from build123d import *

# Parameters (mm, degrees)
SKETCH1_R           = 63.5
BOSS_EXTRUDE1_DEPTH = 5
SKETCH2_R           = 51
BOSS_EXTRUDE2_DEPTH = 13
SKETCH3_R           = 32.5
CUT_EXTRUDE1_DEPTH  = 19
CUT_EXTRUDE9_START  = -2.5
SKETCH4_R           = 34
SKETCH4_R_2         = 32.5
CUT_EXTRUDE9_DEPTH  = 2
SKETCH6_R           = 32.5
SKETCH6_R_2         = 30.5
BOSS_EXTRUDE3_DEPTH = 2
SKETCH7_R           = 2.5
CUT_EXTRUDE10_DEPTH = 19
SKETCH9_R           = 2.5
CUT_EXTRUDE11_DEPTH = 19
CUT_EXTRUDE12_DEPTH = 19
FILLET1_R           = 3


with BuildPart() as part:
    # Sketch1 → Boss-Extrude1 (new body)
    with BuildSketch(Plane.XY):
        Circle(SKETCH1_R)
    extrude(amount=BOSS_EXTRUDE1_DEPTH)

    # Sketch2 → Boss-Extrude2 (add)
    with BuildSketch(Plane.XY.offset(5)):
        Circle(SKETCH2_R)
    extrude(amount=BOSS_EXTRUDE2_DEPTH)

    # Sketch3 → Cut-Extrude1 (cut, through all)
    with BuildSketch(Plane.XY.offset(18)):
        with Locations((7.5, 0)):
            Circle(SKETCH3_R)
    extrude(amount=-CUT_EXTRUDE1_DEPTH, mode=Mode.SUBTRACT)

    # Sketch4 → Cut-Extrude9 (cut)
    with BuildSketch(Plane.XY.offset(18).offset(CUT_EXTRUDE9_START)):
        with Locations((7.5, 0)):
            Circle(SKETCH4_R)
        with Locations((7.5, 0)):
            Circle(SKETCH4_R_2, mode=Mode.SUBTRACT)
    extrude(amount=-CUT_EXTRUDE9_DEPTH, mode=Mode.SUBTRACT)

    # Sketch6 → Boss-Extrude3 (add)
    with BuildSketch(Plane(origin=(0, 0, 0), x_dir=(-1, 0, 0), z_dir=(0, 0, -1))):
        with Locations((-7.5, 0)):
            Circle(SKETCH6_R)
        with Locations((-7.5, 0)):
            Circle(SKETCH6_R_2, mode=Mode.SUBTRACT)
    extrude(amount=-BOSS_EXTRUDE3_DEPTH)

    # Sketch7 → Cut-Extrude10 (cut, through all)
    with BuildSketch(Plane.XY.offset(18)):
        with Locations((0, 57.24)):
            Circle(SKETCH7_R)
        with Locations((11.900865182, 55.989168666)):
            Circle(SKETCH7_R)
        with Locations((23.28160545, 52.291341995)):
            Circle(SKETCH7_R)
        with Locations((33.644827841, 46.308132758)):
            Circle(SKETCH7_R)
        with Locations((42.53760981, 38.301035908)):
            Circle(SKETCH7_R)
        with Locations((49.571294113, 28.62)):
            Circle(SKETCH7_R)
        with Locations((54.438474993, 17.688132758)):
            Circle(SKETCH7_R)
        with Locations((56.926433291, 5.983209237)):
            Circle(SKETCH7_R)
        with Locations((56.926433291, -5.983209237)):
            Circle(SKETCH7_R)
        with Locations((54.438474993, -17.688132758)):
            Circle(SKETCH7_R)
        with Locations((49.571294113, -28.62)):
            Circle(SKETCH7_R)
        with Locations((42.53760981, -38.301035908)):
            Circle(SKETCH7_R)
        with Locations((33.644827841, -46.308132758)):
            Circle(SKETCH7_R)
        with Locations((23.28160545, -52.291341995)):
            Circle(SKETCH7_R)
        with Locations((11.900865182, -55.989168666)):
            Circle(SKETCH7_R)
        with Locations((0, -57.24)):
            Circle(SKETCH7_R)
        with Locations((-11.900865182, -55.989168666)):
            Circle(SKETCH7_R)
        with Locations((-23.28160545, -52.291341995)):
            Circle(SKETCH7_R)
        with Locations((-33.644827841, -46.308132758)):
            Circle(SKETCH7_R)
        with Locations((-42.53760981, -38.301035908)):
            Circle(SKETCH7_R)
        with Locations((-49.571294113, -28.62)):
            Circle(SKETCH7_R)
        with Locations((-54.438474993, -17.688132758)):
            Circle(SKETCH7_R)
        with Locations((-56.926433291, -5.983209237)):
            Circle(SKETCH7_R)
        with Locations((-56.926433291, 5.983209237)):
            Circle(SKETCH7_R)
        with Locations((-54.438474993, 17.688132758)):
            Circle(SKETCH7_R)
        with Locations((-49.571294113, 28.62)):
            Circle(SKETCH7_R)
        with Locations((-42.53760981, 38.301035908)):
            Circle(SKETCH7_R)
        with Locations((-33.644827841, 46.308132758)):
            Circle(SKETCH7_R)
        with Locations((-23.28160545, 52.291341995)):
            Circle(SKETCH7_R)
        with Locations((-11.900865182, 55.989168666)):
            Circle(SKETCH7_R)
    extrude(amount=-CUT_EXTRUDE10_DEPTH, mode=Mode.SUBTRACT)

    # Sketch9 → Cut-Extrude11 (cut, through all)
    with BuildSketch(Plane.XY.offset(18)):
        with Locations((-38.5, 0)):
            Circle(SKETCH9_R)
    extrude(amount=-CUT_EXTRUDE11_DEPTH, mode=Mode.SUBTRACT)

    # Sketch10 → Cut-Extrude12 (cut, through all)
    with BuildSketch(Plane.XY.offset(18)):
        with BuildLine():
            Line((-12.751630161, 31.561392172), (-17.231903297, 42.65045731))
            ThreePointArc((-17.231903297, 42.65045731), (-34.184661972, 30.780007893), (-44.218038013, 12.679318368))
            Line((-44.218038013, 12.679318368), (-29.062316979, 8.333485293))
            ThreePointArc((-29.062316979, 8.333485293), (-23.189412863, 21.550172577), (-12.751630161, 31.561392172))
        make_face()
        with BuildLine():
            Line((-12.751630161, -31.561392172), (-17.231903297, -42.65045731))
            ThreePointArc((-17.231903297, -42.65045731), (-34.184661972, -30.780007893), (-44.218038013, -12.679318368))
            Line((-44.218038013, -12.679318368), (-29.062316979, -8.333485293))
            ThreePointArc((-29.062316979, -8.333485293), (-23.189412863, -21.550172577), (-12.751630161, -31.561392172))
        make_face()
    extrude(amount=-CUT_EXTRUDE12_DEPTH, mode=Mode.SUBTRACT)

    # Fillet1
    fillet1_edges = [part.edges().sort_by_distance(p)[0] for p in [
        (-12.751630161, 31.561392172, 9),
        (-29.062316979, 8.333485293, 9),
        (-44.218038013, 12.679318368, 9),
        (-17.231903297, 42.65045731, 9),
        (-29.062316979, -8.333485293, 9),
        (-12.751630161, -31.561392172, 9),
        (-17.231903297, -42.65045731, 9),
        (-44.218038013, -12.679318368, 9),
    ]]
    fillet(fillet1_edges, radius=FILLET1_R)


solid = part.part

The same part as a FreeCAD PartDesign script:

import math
import FreeCAD as App
import Part
import Sketcher
from FreeCAD import Vector
Q = App.Units.Quantity


def edges_at(feature, points):
    """Names of the edges that pass closest to the given points."""
    edges = feature.Shape.Edges
    near = lambda p: min(range(len(edges)), key=lambda i: edges[i].distToShape(Part.Vertex(*p))[0])
    return sorted({f"Edge{near(p) + 1}" for p in points})

doc = App.newDocument("Part")
body = doc.addObject("PartDesign::Body", "Body")

sketch1 = body.newObject("Sketcher::SketchObject", "Sketch")
sketch1.AttachmentSupport = (doc.getObject("XY_Plane"), [""])
sketch1.MapMode = "FlatFace"
sketch1.addGeometry(Part.Circle(Vector(0, 0, 0), Vector(0, 0, 1), 64), False)
sketch1.addConstraint([
    Sketcher.Constraint("Coincident", 0, 3, -1, 1),
    Sketcher.Constraint("Diameter", 0, 127.0),
])
pad1 = body.newObject("PartDesign::Pad", "Pad")
pad1.Profile = sketch1
pad1.Length = 5

sketch2 = body.newObject("Sketcher::SketchObject", "Sketch001")
sketch2.AttachmentSupport = (doc.getObject("XY_Plane"), [""])
sketch2.MapMode = "FlatFace"
sketch2.AttachmentOffset = App.Placement(Vector(0, 0, 5), App.Rotation())
sketch2.addGeometry(Part.Circle(Vector(0, 0, 0), Vector(0, 0, 1), 51), False)
sketch2.addConstraint([
    Sketcher.Constraint("Coincident", 0, 3, -1, 1),
    Sketcher.Constraint("Diameter", 0, 102.0),
])
pad2 = body.newObject("PartDesign::Pad", "Pad001")
pad2.Profile = sketch2
pad2.Length = 13

sketch3 = body.newObject("Sketcher::SketchObject", "Sketch002")
sketch3.AttachmentSupport = (doc.getObject("XY_Plane"), [""])
sketch3.MapMode = "FlatFace"
sketch3.AttachmentOffset = App.Placement(Vector(0, 0, 18), App.Rotation())
sketch3.addGeometry(Part.Circle(Vector(8, 0, 0), Vector(0, 0, 1), 32), False)
sketch3.addConstraint([
    Sketcher.Constraint("PointOnObject", 0, 3, -1),
    Sketcher.Constraint("Diameter", 0, 65.0),
    Sketcher.Constraint("DistanceX", -1, 1, 0, 3, 7.5),
])
pocket1 = body.newObject("PartDesign::Pocket", "Pocket")
pocket1.Profile = sketch3
pocket1.Type = "ThroughAll"

sketch4 = body.newObject("Sketcher::SketchObject", "Sketch003")
sketch4.AttachmentSupport = (doc.getObject("XY_Plane"), [""])
sketch4.MapMode = "FlatFace"
sketch4.AttachmentOffset = App.Placement(Vector(0, 0, 15.5), App.Rotation())
sketch4.addGeometry([
    Part.Circle(Vector(8, 0, 0), Vector(0, 0, 1), 34),
    Part.Circle(Vector(8, 0, 0), Vector(0, 0, 1), 32),
], False)
sketch4.addConstraint([
    Sketcher.Constraint("Coincident", 1, 3, 0, 3),
    Sketcher.Constraint("PointOnObject", 0, 3, -1),
    Sketcher.Constraint("Diameter", 0, 68.0),
    Sketcher.Constraint("Diameter", 1, 65.0),
    Sketcher.Constraint("DistanceX", -1, 1, 0, 3, 7.5),
])
pocket2 = body.newObject("PartDesign::Pocket", "Pocket001")
pocket2.Profile = sketch4
pocket2.Length = 2

sketch5 = body.newObject("Sketcher::SketchObject", "Sketch004")
sketch5.AttachmentSupport = (doc.getObject("XY_Plane"), [""])
sketch5.MapMode = "FlatFace"
sketch5.addGeometry([
    Part.Circle(Vector(8, 0, 0), Vector(0, 0, 1), 32),
    Part.Circle(Vector(8, 0, 0), Vector(0, 0, 1), 30),
], False)
sketch5.addConstraint([
    Sketcher.Constraint("Coincident", 1, 3, 0, 3),
    Sketcher.Constraint("PointOnObject", 0, 3, -1),
    Sketcher.Constraint("Diameter", 0, 65.0),
    Sketcher.Constraint("Diameter", 1, 61.0),
    Sketcher.Constraint("DistanceX", -1, 1, 0, 3, 7.5),
])
pad3 = body.newObject("PartDesign::Pad", "Pad002")
pad3.Profile = sketch5
pad3.Length = 2

sketch6 = body.newObject("Sketcher::SketchObject", "Sketch005")
sketch6.AttachmentSupport = (doc.getObject("XY_Plane"), [""])
sketch6.MapMode = "FlatFace"
sketch6.AttachmentOffset = App.Placement(Vector(0, 0, 18), App.Rotation())
sketch6.addGeometry([
    Part.Circle(Vector(0, 57.2, 0), Vector(0, 0, 1), 2.5),
    Part.Circle(Vector(11.9, 56, 0), Vector(0, 0, 1), 2.5),
    Part.Circle(Vector(23.3, 52.3, 0), Vector(0, 0, 1), 2.5),
    Part.Circle(Vector(33.6, 46.3, 0), Vector(0, 0, 1), 2.5),
    Part.Circle(Vector(42.5, 38.3, 0), Vector(0, 0, 1), 2.5),
    Part.Circle(Vector(49.6, 28.6, 0), Vector(0, 0, 1), 2.5),
    Part.Circle(Vector(54.4, 17.7, 0), Vector(0, 0, 1), 2.5),
    Part.Circle(Vector(56.9, 6, 0), Vector(0, 0, 1), 2.5),
    Part.Circle(Vector(56.9, -6, 0), Vector(0, 0, 1), 2.5),
    Part.Circle(Vector(54.4, -17.7, 0), Vector(0, 0, 1), 2.5),
    Part.Circle(Vector(49.6, -28.6, 0), Vector(0, 0, 1), 2.5),
    Part.Circle(Vector(42.5, -38.3, 0), Vector(0, 0, 1), 2.5),
    Part.Circle(Vector(33.6, -46.3, 0), Vector(0, 0, 1), 2.5),
    Part.Circle(Vector(23.3, -52.3, 0), Vector(0, 0, 1), 2.5),
    Part.Circle(Vector(11.9, -56, 0), Vector(0, 0, 1), 2.5),
    Part.Circle(Vector(0, -57.2, 0), Vector(0, 0, 1), 2.5),
    Part.Circle(Vector(-11.9, -56, 0), Vector(0, 0, 1), 2.5),
    Part.Circle(Vector(-23.3, -52.3, 0), Vector(0, 0, 1), 2.5),
    Part.Circle(Vector(-33.6, -46.3, 0), Vector(0, 0, 1), 2.5),
    Part.Circle(Vector(-42.5, -38.3, 0), Vector(0, 0, 1), 2.5),
    Part.Circle(Vector(-49.6, -28.6, 0), Vector(0, 0, 1), 2.5),
    Part.Circle(Vector(-54.4, -17.7, 0), Vector(0, 0, 1), 2.5),
    Part.Circle(Vector(-56.9, -6, 0), Vector(0, 0, 1), 2.5),
    Part.Circle(Vector(-56.9, 6, 0), Vector(0, 0, 1), 2.5),
    Part.Circle(Vector(-54.4, 17.7, 0), Vector(0, 0, 1), 2.5),
    Part.Circle(Vector(-49.6, 28.6, 0), Vector(0, 0, 1), 2.5),
    Part.Circle(Vector(-42.5, 38.3, 0), Vector(0, 0, 1), 2.5),
    Part.Circle(Vector(-33.6, 46.3, 0), Vector(0, 0, 1), 2.5),
    Part.Circle(Vector(-23.3, 52.3, 0), Vector(0, 0, 1), 2.5),
    Part.Circle(Vector(-11.9, 56, 0), Vector(0, 0, 1), 2.5),
], False)
sketch6.addConstraint([
    Sketcher.Constraint("Equal", 0, 1),
    Sketcher.Constraint("Equal", 1, 2),
    Sketcher.Constraint("Equal", 2, 3),
    Sketcher.Constraint("Equal", 3, 4),
    Sketcher.Constraint("Equal", 4, 5),
    Sketcher.Constraint("Equal", 5, 6),
    Sketcher.Constraint("Equal", 6, 7),
    Sketcher.Constraint("Equal", 7, 8),
    Sketcher.Constraint("Equal", 8, 9),
    Sketcher.Constraint("Equal", 9, 10),
    Sketcher.Constraint("Equal", 10, 11),
    Sketcher.Constraint("Equal", 11, 12),
    Sketcher.Constraint("Equal", 12, 13),
    Sketcher.Constraint("Equal", 13, 14),
    Sketcher.Constraint("Equal", 14, 15),
    Sketcher.Constraint("Equal", 15, 16),
    Sketcher.Constraint("Equal", 16, 17),
    Sketcher.Constraint("Equal", 17, 18),
    Sketcher.Constraint("Equal", 18, 19),
    Sketcher.Constraint("Equal", 19, 20),
    Sketcher.Constraint("Equal", 20, 21),
    Sketcher.Constraint("Equal", 21, 22),
    Sketcher.Constraint("Equal", 22, 23),
    Sketcher.Constraint("Equal", 23, 24),
    Sketcher.Constraint("Equal", 24, 25),
    Sketcher.Constraint("Equal", 25, 26),
    Sketcher.Constraint("Equal", 26, 27),
    Sketcher.Constraint("Equal", 27, 28),
    Sketcher.Constraint("Equal", 28, 29),
    Sketcher.Constraint("Symmetric", 0, 3, 15, 3, -1, 1),
    Sketcher.Constraint("Symmetric", 1, 3, 16, 3, -1, 1),
    Sketcher.Constraint("Symmetric", 2, 3, 17, 3, -1, 1),
    Sketcher.Constraint("Symmetric", 3, 3, 18, 3, -1, 1),
    Sketcher.Constraint("Symmetric", 4, 3, 19, 3, -1, 1),
    Sketcher.Constraint("Symmetric", 5, 3, 20, 3, -1, 1),
    Sketcher.Constraint("Symmetric", 6, 3, 21, 3, -1, 1),
    Sketcher.Constraint("Symmetric", 7, 3, 22, 3, -1, 1),
    Sketcher.Constraint("Symmetric", 8, 3, 23, 3, -1, 1),
    Sketcher.Constraint("Symmetric", 9, 3, 24, 3, -1, 1),
    Sketcher.Constraint("Symmetric", 10, 3, 25, 3, -1, 1),
    Sketcher.Constraint("Symmetric", 11, 3, 26, 3, -1, 1),
    Sketcher.Constraint("Symmetric", 12, 3, 27, 3, -1, 1),
    Sketcher.Constraint("Symmetric", 13, 3, 28, 3, -1, 1),
    Sketcher.Constraint("Symmetric", 14, 3, 29, 3, -1, 1),
    Sketcher.Constraint("Symmetric", 14, 3, 16, 3, -2),
    Sketcher.Constraint("Symmetric", 13, 3, 17, 3, -2),
    Sketcher.Constraint("Symmetric", 12, 3, 18, 3, -2),
    Sketcher.Constraint("Symmetric", 11, 3, 19, 3, -2),
    Sketcher.Constraint("Symmetric", 10, 3, 20, 3, -2),
    Sketcher.Constraint("Symmetric", 9, 3, 21, 3, -2),
    Sketcher.Constraint("Symmetric", 8, 3, 22, 3, -2),
    Sketcher.Constraint("PointOnObject", 0, 3, -2),
    Sketcher.Constraint("Diameter", 0, 5.0),
    Sketcher.Constraint("DistanceY", -1, 1, 0, 3, 57.24),
    Sketcher.Constraint("DistanceY", -1, 1, 5, 3, 28.62),
    Sketcher.Constraint("DistanceY", 6, 3, 3, 3, 28.62),
    Sketcher.Constraint("DistanceY", -1, 1, 1, 3, 55.989169),
    Sketcher.Constraint("DistanceY", -1, 1, 2, 3, 52.291342),
    Sketcher.Constraint("DistanceX", -1, 1, 4, 3, 42.53761),
    Sketcher.Constraint("DistanceY", -1, 1, 7, 3, 5.983209),
    Sketcher.Constraint("DistanceX", 1, 3, 2, 3, 11.38074),
    Sketcher.Constraint("DistanceY", 3, 3, 2, 3, 5.983209),
    Sketcher.Constraint("DistanceX", 3, 3, 4, 3, 8.892782),
    Sketcher.Constraint("DistanceX", 2, 3, 5, 3, 26.289689),
    Sketcher.Constraint("DistanceX", 5, 3, 6, 3, 4.867181),
    Sketcher.Constraint("DistanceX", 6, 3, 7, 3, 2.487958),
    Sketcher.Constraint("DistanceY", 9, 3, 4, 3, 55.989169),
    Sketcher.Constraint("DistanceX", 16, 3, 14, 3, 23.80173),
])
pocket3 = body.newObject("PartDesign::Pocket", "Pocket002")
pocket3.Profile = sketch6
pocket3.Type = "ThroughAll"

sketch7 = body.newObject("Sketcher::SketchObject", "Sketch006")
sketch7.AttachmentSupport = (doc.getObject("XY_Plane"), [""])
sketch7.MapMode = "FlatFace"
sketch7.AttachmentOffset = App.Placement(Vector(0, 0, 18), App.Rotation())
sketch7.addGeometry(Part.Circle(Vector(-38.5, 0, 0), Vector(0, 0, 1), 2.5), False)
sketch7.addConstraint([
    Sketcher.Constraint("PointOnObject", 0, 3, -1),
    Sketcher.Constraint("Diameter", 0, 5.0),
    Sketcher.Constraint("DistanceX", 0, 3, -1, 1, 38.5),
])
pocket4 = body.newObject("PartDesign::Pocket", "Pocket003")
pocket4.Profile = sketch7
pocket4.Type = "ThroughAll"

sketch8 = body.newObject("Sketcher::SketchObject", "Sketch007")
sketch8.AttachmentSupport = (doc.getObject("XY_Plane"), [""])
sketch8.MapMode = "FlatFace"
sketch8.AttachmentOffset = App.Placement(Vector(0, 0, 18), App.Rotation())
sketch8.addGeometry([
    Part.LineSegment(Vector(-13, 32, 0), Vector(-17, 43, 0)),
    Part.ArcOfCircle(Part.Circle(Vector(0, 0, 0), Vector(0, 0, 1), 46), math.radians(112), math.radians(164)),
    Part.LineSegment(Vector(-44, 13, 0), Vector(-29, 8, 0)),
    Part.ArcOfCircle(Part.Circle(Vector(8, 0, 0), Vector(0, 0, 1), 38), math.radians(123), math.radians(167)),
    Part.LineSegment(Vector(-17, -43, 0), Vector(-13, -32, 0)),
    Part.ArcOfCircle(Part.Circle(Vector(8, 0, 0), Vector(0, 0, 1), 38), math.radians(-167), math.radians(-123)),
    Part.LineSegment(Vector(-29, -8, 0), Vector(-44, -13, 0)),
    Part.ArcOfCircle(Part.Circle(Vector(0, 0, 0), Vector(0, 0, 1), 46), math.radians(-164), math.radians(-112)),
], False)
sketch8.addConstraint([
    Sketcher.Constraint("Coincident", 0, 2, 1, 1),
    Sketcher.Constraint("Coincident", 1, 2, 2, 1),
    Sketcher.Constraint("Coincident", 2, 2, 3, 2),
    Sketcher.Constraint("Coincident", 3, 1, 0, 1),
    Sketcher.Constraint("Coincident", 4, 2, 5, 2),
    Sketcher.Constraint("Coincident", 5, 1, 6, 1),
    Sketcher.Constraint("Coincident", 6, 2, 7, 1),
    Sketcher.Constraint("Coincident", 7, 2, 4, 1),
    Sketcher.Constraint("Coincident", 1, 3, -1, 1),
    Sketcher.Constraint("Coincident", 7, 3, -1, 1),
    Sketcher.Constraint("Coincident", 5, 3, 3, 3),
    Sketcher.Constraint("Equal", 3, 5),
    Sketcher.Constraint("Equal", 1, 7),
    Sketcher.Constraint("Symmetric", 3, 1, 4, 2, -1),
    Sketcher.Constraint("Vertical", 2, 2, 5, 1),
    Sketcher.Constraint("Vertical", 1, 2, 6, 2),
    Sketcher.Constraint("Vertical", 0, 2, 7, 2),
    Sketcher.Constraint("Radius", 1, 46.0),
    Sketcher.Constraint("Radius", 3, 37.5),
    Sketcher.Constraint("Angle", 0, Q("112 deg")),
    Sketcher.Constraint("Angle", 2, Q("-16 deg")),
    Sketcher.Constraint("DistanceX", -1, 1, 3, 3, 7.5),
    Sketcher.Constraint("Distance", 2, 15.766488),
    Sketcher.Constraint("DistanceX", 3, 1, -1, 1, 12.75163),
])
pocket5 = body.newObject("PartDesign::Pocket", "Pocket004")
pocket5.Profile = sketch8
pocket5.Type = "ThroughAll"
doc.recompute()

fillet = body.newObject("PartDesign::Fillet", "Fillet")
fillet.Base = (pocket5, edges_at(pocket5, [
    (-12.752, 31.561, 9),
    (-29.062, 8.333, 9),
    (-44.218, 12.679, 9),
    (-17.232, 42.65, 9),
    (-29.062, -8.333, 9),
    (-12.752, -31.561, 9),
    (-17.232, -42.65, 9),
    (-44.218, -12.679, 9),
]))
fillet.Radius = 3

doc.recompute()
